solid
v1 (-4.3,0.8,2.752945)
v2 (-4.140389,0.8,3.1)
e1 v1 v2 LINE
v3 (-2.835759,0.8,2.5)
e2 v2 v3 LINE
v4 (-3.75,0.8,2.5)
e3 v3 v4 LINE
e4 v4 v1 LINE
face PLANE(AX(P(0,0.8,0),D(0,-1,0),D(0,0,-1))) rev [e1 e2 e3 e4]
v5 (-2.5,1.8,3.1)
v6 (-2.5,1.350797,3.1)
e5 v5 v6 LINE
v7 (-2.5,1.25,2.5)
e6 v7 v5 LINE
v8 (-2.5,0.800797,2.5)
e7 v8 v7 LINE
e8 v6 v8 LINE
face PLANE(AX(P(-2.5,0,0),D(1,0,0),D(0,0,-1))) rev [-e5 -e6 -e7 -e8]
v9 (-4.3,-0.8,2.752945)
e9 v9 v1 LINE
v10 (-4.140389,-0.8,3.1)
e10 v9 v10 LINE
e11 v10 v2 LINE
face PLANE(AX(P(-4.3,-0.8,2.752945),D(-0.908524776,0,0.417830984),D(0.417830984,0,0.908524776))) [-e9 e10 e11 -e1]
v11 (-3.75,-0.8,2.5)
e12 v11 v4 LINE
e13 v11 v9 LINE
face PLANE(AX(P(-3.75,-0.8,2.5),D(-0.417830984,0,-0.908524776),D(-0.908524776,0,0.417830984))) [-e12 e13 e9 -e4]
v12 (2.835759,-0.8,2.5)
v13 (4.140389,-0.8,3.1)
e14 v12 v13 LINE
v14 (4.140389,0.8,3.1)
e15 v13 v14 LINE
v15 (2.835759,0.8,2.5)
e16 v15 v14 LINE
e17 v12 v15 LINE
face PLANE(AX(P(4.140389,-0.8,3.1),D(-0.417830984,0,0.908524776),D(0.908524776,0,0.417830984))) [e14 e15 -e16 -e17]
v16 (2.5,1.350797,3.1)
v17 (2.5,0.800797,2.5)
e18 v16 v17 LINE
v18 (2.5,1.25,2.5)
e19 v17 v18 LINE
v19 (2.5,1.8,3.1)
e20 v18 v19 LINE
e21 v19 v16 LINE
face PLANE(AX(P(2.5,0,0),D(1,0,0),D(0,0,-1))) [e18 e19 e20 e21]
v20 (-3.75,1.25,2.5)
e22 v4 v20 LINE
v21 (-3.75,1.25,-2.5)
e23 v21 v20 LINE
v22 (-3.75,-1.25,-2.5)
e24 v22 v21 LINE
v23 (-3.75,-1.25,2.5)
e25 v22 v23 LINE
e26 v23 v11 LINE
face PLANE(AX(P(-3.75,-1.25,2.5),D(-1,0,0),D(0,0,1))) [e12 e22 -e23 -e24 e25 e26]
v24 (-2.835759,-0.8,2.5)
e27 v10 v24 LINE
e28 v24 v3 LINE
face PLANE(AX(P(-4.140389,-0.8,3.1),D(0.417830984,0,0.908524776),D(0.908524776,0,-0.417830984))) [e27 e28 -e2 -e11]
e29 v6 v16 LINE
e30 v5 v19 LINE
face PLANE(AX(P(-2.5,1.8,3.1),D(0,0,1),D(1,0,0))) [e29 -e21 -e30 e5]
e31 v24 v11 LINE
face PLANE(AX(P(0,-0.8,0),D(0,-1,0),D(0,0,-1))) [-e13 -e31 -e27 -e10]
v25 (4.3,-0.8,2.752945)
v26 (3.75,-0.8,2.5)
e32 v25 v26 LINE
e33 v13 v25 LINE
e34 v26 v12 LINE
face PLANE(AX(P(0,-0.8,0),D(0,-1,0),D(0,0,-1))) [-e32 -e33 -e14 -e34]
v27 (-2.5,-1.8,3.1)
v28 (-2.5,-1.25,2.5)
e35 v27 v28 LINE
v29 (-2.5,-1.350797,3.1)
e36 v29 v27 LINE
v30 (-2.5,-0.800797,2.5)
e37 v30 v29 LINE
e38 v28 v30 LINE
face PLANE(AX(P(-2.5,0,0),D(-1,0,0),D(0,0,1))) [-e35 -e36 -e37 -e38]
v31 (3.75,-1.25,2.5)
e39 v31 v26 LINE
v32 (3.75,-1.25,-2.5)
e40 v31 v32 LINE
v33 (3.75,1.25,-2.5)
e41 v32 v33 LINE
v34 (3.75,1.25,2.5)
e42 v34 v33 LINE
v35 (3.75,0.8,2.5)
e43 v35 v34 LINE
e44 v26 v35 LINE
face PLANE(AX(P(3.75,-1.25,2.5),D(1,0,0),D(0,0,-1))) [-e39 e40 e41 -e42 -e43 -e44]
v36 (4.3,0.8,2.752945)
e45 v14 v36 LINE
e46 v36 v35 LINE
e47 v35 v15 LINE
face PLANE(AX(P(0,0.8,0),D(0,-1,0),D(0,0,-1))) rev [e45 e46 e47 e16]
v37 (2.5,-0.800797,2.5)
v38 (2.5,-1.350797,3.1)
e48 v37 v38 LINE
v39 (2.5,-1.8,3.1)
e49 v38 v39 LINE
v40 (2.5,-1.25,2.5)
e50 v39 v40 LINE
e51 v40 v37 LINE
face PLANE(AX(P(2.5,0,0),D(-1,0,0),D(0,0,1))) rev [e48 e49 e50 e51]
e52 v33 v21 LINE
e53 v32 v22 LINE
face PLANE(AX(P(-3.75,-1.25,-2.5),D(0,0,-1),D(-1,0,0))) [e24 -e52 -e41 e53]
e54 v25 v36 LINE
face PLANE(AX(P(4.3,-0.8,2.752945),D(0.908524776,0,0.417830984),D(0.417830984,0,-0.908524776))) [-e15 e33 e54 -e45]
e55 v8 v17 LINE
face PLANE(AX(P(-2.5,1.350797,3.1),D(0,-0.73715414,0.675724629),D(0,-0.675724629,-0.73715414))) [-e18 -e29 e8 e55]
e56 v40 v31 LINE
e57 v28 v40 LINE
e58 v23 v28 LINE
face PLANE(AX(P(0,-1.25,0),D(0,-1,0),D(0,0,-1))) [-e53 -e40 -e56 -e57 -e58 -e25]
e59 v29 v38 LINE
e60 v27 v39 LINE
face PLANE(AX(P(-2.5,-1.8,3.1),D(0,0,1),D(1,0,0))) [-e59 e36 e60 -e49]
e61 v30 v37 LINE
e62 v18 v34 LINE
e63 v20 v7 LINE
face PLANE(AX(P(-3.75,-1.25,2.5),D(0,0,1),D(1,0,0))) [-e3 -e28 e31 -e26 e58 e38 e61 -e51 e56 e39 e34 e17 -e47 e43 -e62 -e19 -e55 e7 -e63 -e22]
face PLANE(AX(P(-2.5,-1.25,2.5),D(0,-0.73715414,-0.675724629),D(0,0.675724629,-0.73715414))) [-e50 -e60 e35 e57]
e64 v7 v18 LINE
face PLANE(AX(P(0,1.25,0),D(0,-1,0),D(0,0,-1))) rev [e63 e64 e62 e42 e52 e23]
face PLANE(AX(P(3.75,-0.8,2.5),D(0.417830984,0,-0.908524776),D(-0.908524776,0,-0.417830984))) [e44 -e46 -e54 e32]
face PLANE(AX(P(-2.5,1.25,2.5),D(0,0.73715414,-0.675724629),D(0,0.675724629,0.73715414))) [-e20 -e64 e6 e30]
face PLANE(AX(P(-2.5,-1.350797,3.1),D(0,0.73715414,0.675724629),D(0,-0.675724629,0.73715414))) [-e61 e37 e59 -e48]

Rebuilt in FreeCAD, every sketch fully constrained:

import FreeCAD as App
import Part
import Sketcher
Q = App.Units.Quantity

doc = App.newDocument("Part")
params = doc.addObject("Spreadsheet::Sheet", "Params")
for row, (alias, value) in enumerate([
    ("sketch1_height", "5 mm"),
    ("sketch1_width", "7.5 mm"),
    ("pad1_length", "1.25 mm"),
    ("pad1_length2", "1.25 mm"),
    ("pad2_length", "0.8 mm"),
    ("pad2_length2", "0.8 mm"),
    ("pad3_length", "2.5 mm"),
    ("pad3_length2", "2.5 mm"),
], start=1):
    params.set(f"A{row}", alias)
    params.set(f"B{row}", "=" + value)
    params.setAlias(f"B{row}", alias)

body = doc.addObject("PartDesign::Body", "Body")

# Sketch on XZ plane
sketch1 = body.newObject("Sketcher::SketchObject", "Sketch")
sketch1.AttachmentSupport = (doc.getObject("XZ_Plane"), [""])
sketch1.MapMode = "FlatFace"
sketch1.addGeometry([
    Part.LineSegment(App.Vector(-4, -2, 0), App.Vector(-4, 2, 0)),
    Part.LineSegment(App.Vector(-4, 2, 0), App.Vector(4, 2, 0)),
    Part.LineSegment(App.Vector(4, 2, 0), App.Vector(4, -2, 0)),
    Part.LineSegment(App.Vector(4, -2, 0), App.Vector(-4, -2, 0)),
], False)
sketch1.addConstraint([
    Sketcher.Constraint("Coincident", 0, 2, 1, 1),
    Sketcher.Constraint("Coincident", 1, 2, 2, 1),
    Sketcher.Constraint("Coincident", 2, 2, 3, 1),
    Sketcher.Constraint("Coincident", 3, 2, 0, 1),
    Sketcher.Constraint("Vertical", 0),
    Sketcher.Constraint("Horizontal", 1),
    Sketcher.Constraint("Vertical", 2),
    Sketcher.Constraint("Horizontal", 3),
    Sketcher.Constraint("Symmetric", 0, 2, 2, 2, -1, 1),
    Sketcher.Constraint("DistanceY", 0, 1, 0, 2, Q("5 mm")),
    Sketcher.Constraint("DistanceX", 1, 1, 1, 2, Q("7.5 mm")),
])
sketch1.setExpression("Constraints[9]", "Params.sketch1_height")
sketch1.setExpression("Constraints[10]", "Params.sketch1_width")
pad1 = body.newObject("PartDesign::Pad", "Pad")
pad1.Profile = sketch1
pad1.Type = "TwoLengths"
pad1.setExpression("Length", "Params.pad1_length")
pad1.setExpression("Length2", "Params.pad1_length2")
pad1.Reversed = True

# Sketch on XZ plane
sketch2 = body.newObject("Sketcher::SketchObject", "Sketch001")
sketch2.AttachmentSupport = (doc.getObject("XZ_Plane"), [""])
sketch2.MapMode = "FlatFace"
sketch2.addGeometry([
    Part.LineSegment(App.Vector(-3.75, 2.5, 0), App.Vector(-4.3, 2.75, 0)),  # 0
    Part.LineSegment(App.Vector(-4.3, 2.75, 0), App.Vector(-4.14, 3.1, 0)),  # 1
    Part.LineSegment(App.Vector(-4.14, 3.1, 0), App.Vector(-2.84, 2.5, 0)),  # 2
    Part.LineSegment(App.Vector(-2.84, 2.5, 0), App.Vector(-3.75, 2.5, 0)),  # 3
    Part.LineSegment(App.Vector(3.75, 2.5, 0), App.Vector(2.84, 2.5, 0)),  # 4
    Part.LineSegment(App.Vector(2.84, 2.5, 0), App.Vector(4.14, 3.1, 0)),  # 5
    Part.LineSegment(App.Vector(4.14, 3.1, 0), App.Vector(4.3, 2.75, 0)),  # 6
    Part.LineSegment(App.Vector(4.3, 2.75, 0), App.Vector(3.75, 2.5, 0)),  # 7
], False)
sketch2.addConstraint([
    Sketcher.Constraint("Coincident", 0, 2, 1, 1),
    Sketcher.Constraint("Coincident", 1, 2, 2, 1),
    Sketcher.Constraint("Coincident", 2, 2, 3, 1),
    Sketcher.Constraint("Coincident", 3, 2, 0, 1),
    Sketcher.Constraint("Coincident", 4, 2, 5, 1),
    Sketcher.Constraint("Coincident", 5, 2, 6, 1),
    Sketcher.Constraint("Coincident", 6, 2, 7, 1),
    Sketcher.Constraint("Coincident", 7, 2, 4, 1),
    Sketcher.Constraint("Horizontal", 3),
    Sketcher.Constraint("Horizontal", 4),
    Sketcher.Constraint("Symmetric", 2, 2, 4, 2, -2),
    Sketcher.Constraint("Symmetric", 1, 2, 5, 2, -2),
    Sketcher.Constraint("Symmetric", 0, 2, 6, 2, -2),
    Sketcher.Constraint("Perpendicular", 0, 1),
    Sketcher.Constraint("Perpendicular", 1, 2),
    Sketcher.Constraint("Perpendicular", 6, 7),
    Sketcher.Constraint("DistanceX", 0, 2, -1, 1, Q("4.3 mm")),
    Sketcher.Constraint("DistanceY", -1, 1, 1, 2, Q("3.1 mm")),
    Sketcher.Constraint("DistanceY", -1, 1, 2, 2, Q("2.5 mm")),
    Sketcher.Constraint("DistanceX", 3, 2, 7, 2, Q("7.5 mm")),
    Sketcher.Constraint("Distance", 1, Q("0.381998 mm")),
])
pad2 = body.newObject("PartDesign::Pad", "Pad001")
pad2.Profile = sketch2
pad2.Type = "TwoLengths"
pad2.setExpression("Length", "Params.pad2_length")
pad2.setExpression("Length2", "Params.pad2_length2")
pad2.Reversed = True

# Sketch on YZ plane
sketch3 = body.newObject("Sketcher::SketchObject", "Sketch002")
sketch3.AttachmentSupport = (doc.getObject("YZ_Plane"), [""])
sketch3.MapMode = "FlatFace"
sketch3.addGeometry([
    Part.LineSegment(App.Vector(1.25, 2.5, 0), App.Vector(1.8, 3.1, 0)),  # 0
    Part.LineSegment(App.Vector(1.8, 3.1, 0), App.Vector(1.35, 3.1, 0)),  # 1
    Part.LineSegment(App.Vector(1.35, 3.1, 0), App.Vector(0.8, 2.5, 0)),  # 2
    Part.LineSegment(App.Vector(0.8, 2.5, 0), App.Vector(1.25, 2.5, 0)),  # 3
    Part.LineSegment(App.Vector(-1.25, 2.5, 0), App.Vector(-0.8, 2.5, 0)),  # 4
    Part.LineSegment(App.Vector(-0.8, 2.5, 0), App.Vector(-1.35, 3.1, 0)),  # 5
    Part.LineSegment(App.Vector(-1.35, 3.1, 0), App.Vector(-1.8, 3.1, 0)),  # 6
    Part.LineSegment(App.Vector(-1.8, 3.1, 0), App.Vector(-1.25, 2.5, 0)),  # 7
], False)
sketch3.addConstraint([
    Sketcher.Constraint("Coincident", 0, 2, 1, 1),
    Sketcher.Constraint("Coincident", 1, 2, 2, 1),
    Sketcher.Constraint("Coincident", 2, 2, 3, 1),
    Sketcher.Constraint("Coincident", 3, 2, 0, 1),
    Sketcher.Constraint("Coincident", 4, 2, 5, 1),
    Sketcher.Constraint("Coincident", 5, 2, 6, 1),
    Sketcher.Constraint("Coincident", 6, 2, 7, 1),
    Sketcher.Constraint("Coincident", 7, 2, 4, 1),
    Sketcher.Constraint("Horizontal", 1),
    Sketcher.Constraint("Horizontal", 3),
    Sketcher.Constraint("Horizontal", 4),
    Sketcher.Constraint("Horizontal", 6),
    Sketcher.Constraint("Symmetric", 2, 2, 4, 2, -2),
    Sketcher.Constraint("Symmetric", 1, 2, 5, 2, -2),
    Sketcher.Constraint("Parallel", 0, 2),
    Sketcher.Constraint("Parallel", 5, 7),
    Sketcher.Constraint("Equal", 3, 4),
    Sketcher.Constraint("DistanceX", -1, 1, 0, 2, Q("1.8 mm")),
    Sketcher.Constraint("DistanceY", -1, 1, 0, 2, Q("3.1 mm")),
    Sketcher.Constraint("DistanceY", -1, 1, 2, 2, Q("2.5 mm")),
    Sketcher.Constraint("DistanceX", 7, 2, 3, 2, Q("2.5 mm")),
    Sketcher.Constraint("DistanceX", 1, 2, 1, 1, Q("0.449203 mm")),
])
pad3 = body.newObject("PartDesign::Pad", "Pad002")
pad3.Profile = sketch3
pad3.Type = "TwoLengths"
pad3.setExpression("Length", "Params.pad3_length")
pad3.setExpression("Length2", "Params.pad3_length2")

doc.recompute()
